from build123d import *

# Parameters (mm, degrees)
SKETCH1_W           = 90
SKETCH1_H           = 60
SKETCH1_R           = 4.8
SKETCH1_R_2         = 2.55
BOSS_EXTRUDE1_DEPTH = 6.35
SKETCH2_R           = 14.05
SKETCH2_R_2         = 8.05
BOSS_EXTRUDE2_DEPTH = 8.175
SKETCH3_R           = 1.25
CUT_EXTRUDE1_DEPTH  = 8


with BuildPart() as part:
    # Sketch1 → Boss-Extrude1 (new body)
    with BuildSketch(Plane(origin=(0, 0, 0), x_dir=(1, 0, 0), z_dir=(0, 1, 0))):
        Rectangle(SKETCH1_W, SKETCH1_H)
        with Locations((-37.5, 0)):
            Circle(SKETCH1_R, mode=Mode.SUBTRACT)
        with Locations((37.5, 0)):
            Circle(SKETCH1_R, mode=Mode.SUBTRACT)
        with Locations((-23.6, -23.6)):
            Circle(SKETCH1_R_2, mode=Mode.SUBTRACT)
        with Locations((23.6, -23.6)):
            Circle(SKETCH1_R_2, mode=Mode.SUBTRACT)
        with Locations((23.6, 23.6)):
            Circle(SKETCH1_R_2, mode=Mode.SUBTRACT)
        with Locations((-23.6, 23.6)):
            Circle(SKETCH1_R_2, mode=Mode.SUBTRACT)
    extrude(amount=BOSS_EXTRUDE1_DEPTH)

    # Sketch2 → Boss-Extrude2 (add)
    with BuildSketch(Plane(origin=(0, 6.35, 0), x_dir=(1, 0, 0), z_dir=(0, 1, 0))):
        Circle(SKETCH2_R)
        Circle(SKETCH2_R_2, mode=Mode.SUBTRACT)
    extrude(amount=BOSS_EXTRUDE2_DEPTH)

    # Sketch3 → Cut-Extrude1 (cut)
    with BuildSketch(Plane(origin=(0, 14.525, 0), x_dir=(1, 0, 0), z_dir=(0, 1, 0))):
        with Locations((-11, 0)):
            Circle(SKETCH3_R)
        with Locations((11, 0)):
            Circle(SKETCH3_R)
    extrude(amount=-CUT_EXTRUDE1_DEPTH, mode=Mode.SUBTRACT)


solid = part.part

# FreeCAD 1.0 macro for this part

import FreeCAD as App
import Part
import Sketcher
Q = App.Units.Quantity

doc = App.newDocument("Part")
body = doc.addObject("PartDesign::Body", "Body")

# Sketch on XZ plane
sketch1 = doc.addObject("Sketcher::SketchObject", "Sketch")
body.addObject(sketch1)
sketch1.AttachmentSupport = (doc.XZ_Plane, [""])
sketch1.MapMode = "FlatFace"
sketch1.addGeometry(Part.LineSegment(App.Vector(-45, -30, 0), App.Vector(-45, 30, 0)), False)
sketch1.addGeometry(Part.LineSegment(App.Vector(-45, 30, 0), App.Vector(45, 30, 0)), False)
sketch1.addGeometry(Part.LineSegment(App.Vector(45, 30, 0), App.Vector(45, -30, 0)), False)
sketch1.addGeometry(Part.LineSegment(App.Vector(45, -30, 0), App.Vector(-45, -30, 0)), False)
sketch1.addGeometry(Part.Circle(App.Vector(-23.6, 23.6, 0), App.Vector(0, 0, 1), 2.5), False)
sketch1.addGeometry(Part.Circle(App.Vector(-37.5, 0, 0), App.Vector(0, 0, 1), 4.8), False)
sketch1.addGeometry(Part.Circle(App.Vector(23.6, 23.6, 0), App.Vector(0, 0, 1), 2.5), False)
sketch1.addGeometry(Part.Circle(App.Vector(37.5, 0, 0), App.Vector(0, 0, 1), 4.8), False)
sketch1.addGeometry(Part.Circle(App.Vector(-23.6, -23.6, 0), App.Vector(0, 0, 1), 2.5), False)
sketch1.addGeometry(Part.Circle(App.Vector(23.6, -23.6, 0), App.Vector(0, 0, 1), 2.5), False)
sketch1.addConstraint(Sketcher.Constraint("Coincident", 0, 2, 1, 1))
sketch1.addConstraint(Sketcher.Constraint("Coincident", 1, 2, 2, 1))
sketch1.addConstraint(Sketcher.Constraint("Coincident", 2, 2, 3, 1))
sketch1.addConstraint(Sketcher.Constraint("Coincident", 3, 2, 0, 1))
sketch1.addConstraint(Sketcher.Constraint("Vertical", 0))
sketch1.addConstraint(Sketcher.Constraint("Horizontal", 1))
sketch1.addConstraint(Sketcher.Constraint("Vertical", 2))
sketch1.addConstraint(Sketcher.Constraint("Horizontal", 3))
sketch1.addConstraint(Sketcher.Constraint("Equal", 4, 6))
sketch1.addConstraint(Sketcher.Constraint("Equal", 5, 7))
sketch1.addConstraint(Sketcher.Constraint("Equal", 6, 8))
sketch1.addConstraint(Sketcher.Constraint("Equal", 8, 9))
sketch1.addConstraint(Sketcher.Constraint("Symmetric", 5, 3, 7, 3, -1, 1))
sketch1.addConstraint(Sketcher.Constraint("Symmetric", 6, 3, 8, 3, -1, 1))
sketch1.addConstraint(Sketcher.Constraint("Symmetric", 4, 3, 9, 3, -1, 1))
sketch1.addConstraint(Sketcher.Constraint("Symmetric", 0, 2, 2, 2, -1, 1))
sketch1.addConstraint(Sketcher.Constraint("Symmetric", 4, 3, 6, 3, -2))
sketch1.addConstraint(Sketcher.Constraint("PointOnObject", 5, 3, -1))
sketch1.addConstraint(Sketcher.Constraint("Diameter", 4, Q("5.1 mm")))
sketch1.addConstraint(Sketcher.Constraint("Diameter", 5, Q("9.6 mm")))
sketch1.addConstraint(Sketcher.Constraint("DistanceX", 1, 1, 1, 2, Q("90 mm")))
sketch1.addConstraint(Sketcher.Constraint("DistanceY", 0, 1, 0, 2, Q("60 mm")))
sketch1.addConstraint(Sketcher.Constraint("DistanceX", 5, 3, 7, 3, Q("75 mm")))
sketch1.addConstraint(Sketcher.Constraint("DistanceX", 4, 3, -1, 1, Q("23.6 mm")))
sketch1.addConstraint(Sketcher.Constraint("DistanceY", -1, 1, 4, 3, Q("23.6 mm")))
pad1 = doc.addObject("PartDesign::Pad", "Pad")
body.addObject(pad1)
pad1.Profile = sketch1
pad1.Length = 6.35
pad1.Reversed = True

# Sketch on XZ plane
sketch2 = doc.addObject("Sketcher::SketchObject", "Sketch001")
body.addObject(sketch2)
sketch2.AttachmentSupport = (doc.XZ_Plane, [""])
sketch2.MapMode = "FlatFace"
sketch2.AttachmentOffset = App.Placement(App.Vector(0, 0, -6.35), App.Rotation())
sketch2.addGeometry(Part.Circle(App.Vector(0, 0, 0), App.Vector(0, 0, 1), 14), False)
sketch2.addGeometry(Part.Circle(App.Vector(0, 0, 0), App.Vector(0, 0, 1), 8), False)
sketch2.addConstraint(Sketcher.Constraint("Coincident", 0, 3, -1, 1))
sketch2.addConstraint(Sketcher.Constraint("Coincident", 1, 3, -1, 1))
sketch2.addConstraint(Sketcher.Constraint("Diameter", 0, Q("28.1 mm")))
sketch2.addConstraint(Sketcher.Constraint("Diameter", 1, Q("16.1 mm")))
pad2 = doc.addObject("PartDesign::Pad", "Pad001")
body.addObject(pad2)
pad2.Profile = sketch2
pad2.Length = 8.175
pad2.Reversed = True

# Sketch on XZ plane
sketch3 = doc.addObject("Sketcher::SketchObject", "Sketch002")
body.addObject(sketch3)
sketch3.AttachmentSupport = (doc.XZ_Plane, [""])
sketch3.MapMode = "FlatFace"
sketch3.AttachmentOffset = App.Placement(App.Vector(0, 0, -14.525), App.Rotation())
sketch3.addGeometry(Part.Circle(App.Vector(-11, 0, 0), App.Vector(0, 0, 1), 1.2), False)
sketch3.addGeometry(Part.Circle(App.Vector(11, 0, 0), App.Vector(0, 0, 1), 1.2), False)
sketch3.addConstraint(Sketcher.Constraint("Equal", 0, 1))
sketch3.addConstraint(Sketcher.Constraint("Symmetric", 0, 3, 1, 3, -1, 1))
sketch3.addConstraint(Sketcher.Constraint("PointOnObject", 0, 3, -1))
sketch3.addConstraint(Sketcher.Constraint("Diameter", 0, Q("2.5 mm")))
sketch3.addConstraint(Sketcher.Constraint("DistanceX", 0, 3, -1, 1, Q("11 mm")))
pocket1 = doc.addObject("PartDesign::Pocket", "Pocket")
body.addObject(pocket1)
pocket1.Profile = sketch3
pocket1.Length = 8
pocket1.Reversed = True

doc.recompute()
